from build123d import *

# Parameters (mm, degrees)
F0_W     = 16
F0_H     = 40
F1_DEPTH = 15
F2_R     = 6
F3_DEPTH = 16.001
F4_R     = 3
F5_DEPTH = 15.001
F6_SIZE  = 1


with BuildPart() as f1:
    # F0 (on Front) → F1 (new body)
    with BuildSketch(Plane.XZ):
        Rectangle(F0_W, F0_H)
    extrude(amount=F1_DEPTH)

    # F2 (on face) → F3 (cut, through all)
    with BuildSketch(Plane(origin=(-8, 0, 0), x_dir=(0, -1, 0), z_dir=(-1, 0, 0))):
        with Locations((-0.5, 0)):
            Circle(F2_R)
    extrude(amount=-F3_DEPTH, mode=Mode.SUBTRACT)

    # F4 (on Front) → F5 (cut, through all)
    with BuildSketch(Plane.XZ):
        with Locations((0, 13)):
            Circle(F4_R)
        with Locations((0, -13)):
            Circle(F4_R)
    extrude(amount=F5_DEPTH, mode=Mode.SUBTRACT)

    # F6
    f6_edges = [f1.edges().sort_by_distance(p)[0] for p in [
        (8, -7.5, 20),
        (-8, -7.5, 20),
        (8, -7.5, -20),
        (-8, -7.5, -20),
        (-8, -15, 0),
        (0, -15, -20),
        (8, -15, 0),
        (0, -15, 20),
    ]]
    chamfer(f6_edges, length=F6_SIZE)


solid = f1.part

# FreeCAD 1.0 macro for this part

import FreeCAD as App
import Part
import Sketcher
from FreeCAD import Vector
Q = App.Units.Quantity


def edges_at(feature, points):
    """Names of the edges that pass closest to the given points."""
    edges = feature.Shape.Edges
    near = lambda p: min(range(len(edges)), key=lambda i: edges[i].distToShape(Part.Vertex(*p))[0])
    return sorted({f"Edge{near(p) + 1}" for p in points})

doc = App.newDocument("Part")
body = doc.addObject("PartDesign::Body", "Body")

# Sketch on XZ plane
sketch1 = doc.addObject("Sketcher::SketchObject", "Sketch")
body.addObject(sketch1)
sketch1.AttachmentSupport = (doc.XZ_Plane, [""])
sketch1.MapMode = "FlatFace"
sketch1.addGeometry([
    Part.LineSegment(Vector(-8, 20, 0), Vector(-8, -20, 0)),
    Part.LineSegment(Vector(-8, -20, 0), Vector(8, -20, 0)),
    Part.LineSegment(Vector(8, -20, 0), Vector(8, 20, 0)),
    Part.LineSegment(Vector(8, 20, 0), Vector(-8, 20, 0)),
], False)
sketch1.addConstraint([
    Sketcher.Constraint("Coincident", 0, 2, 1, 1),
    Sketcher.Constraint("Coincident", 1, 2, 2, 1),
    Sketcher.Constraint("Coincident", 2, 2, 3, 1),
    Sketcher.Constraint("Coincident", 3, 2, 0, 1),
    Sketcher.Constraint("Vertical", 0),
    Sketcher.Constraint("Horizontal", 1),
    Sketcher.Constraint("Vertical", 2),
    Sketcher.Constraint("Horizontal", 3),
    Sketcher.Constraint("Symmetric", 0, 2, 2, 2, -1, 1),
    Sketcher.Constraint("DistanceX", 1, 1, 1, 2, Q("16 mm")),
    Sketcher.Constraint("DistanceY", 0, 2, 0, 1, Q("40 mm")),
])
pad1 = doc.addObject("PartDesign::Pad", "Pad")
body.addObject(pad1)
pad1.Profile = sketch1
pad1.Length = 15

# Sketch on YZ plane
sketch2 = doc.addObject("Sketcher::SketchObject", "Sketch001")
body.addObject(sketch2)
sketch2.AttachmentSupport = (doc.YZ_Plane, [""])
sketch2.MapMode = "FlatFace"
sketch2.AttachmentOffset = App.Placement(Vector(0, 0, -8), App.Rotation())
sketch2.addGeometry(Part.Circle(Vector(0.5, 0, 0), Vector(0, 0, 1), 6), False)
sketch2.addConstraint([
    Sketcher.Constraint("PointOnObject", 0, 3, -1),
    Sketcher.Constraint("Diameter", 0, Q("12 mm")),
    Sketcher.Constraint("DistanceX", -1, 1, 0, 3, Q("0.5 mm")),
])
pocket1 = doc.addObject("PartDesign::Pocket", "Pocket")
body.addObject(pocket1)
pocket1.Profile = sketch2
pocket1.Type = "ThroughAll"
pocket1.Reversed = True

# Sketch on XZ plane
sketch3 = doc.addObject("Sketcher::SketchObject", "Sketch002")
body.addObject(sketch3)
sketch3.AttachmentSupport = (doc.XZ_Plane, [""])
sketch3.MapMode = "FlatFace"
sketch3.addGeometry([
    Part.Circle(Vector(0, 13, 0), Vector(0, 0, 1), 3),
    Part.Circle(Vector(0, -13, 0), Vector(0, 0, 1), 3),
], False)
sketch3.addConstraint([
    Sketcher.Constraint("Equal", 0, 1),
    Sketcher.Constraint("Symmetric", 0, 3, 1, 3, -1, 1),
    Sketcher.Constraint("PointOnObject", 0, 3, -2),
    Sketcher.Constraint("Diameter", 0, Q("6 mm")),
    Sketcher.Constraint("DistanceY", -1, 1, 0, 3, Q("13 mm")),
])
pocket2 = doc.addObject("PartDesign::Pocket", "Pocket001")
body.addObject(pocket2)
pocket2.Profile = sketch3
pocket2.Type = "ThroughAll"
pocket2.Reversed = True
doc.recompute()

chamfer = doc.addObject("PartDesign::Chamfer", "Chamfer")
body.addObject(chamfer)
chamfer.Base = (pocket2, edges_at(pocket2, [
    (8, -7.5, 20),
    (-8, -7.5, 20),
    (8, -7.5, -20),
    (-8, -7.5, -20),
    (-8, -15, 0),
    (0, -15, -20),
    (8, -15, 0),
    (0, -15, 20),
]))
chamfer.Size = 1

doc.recompute()
